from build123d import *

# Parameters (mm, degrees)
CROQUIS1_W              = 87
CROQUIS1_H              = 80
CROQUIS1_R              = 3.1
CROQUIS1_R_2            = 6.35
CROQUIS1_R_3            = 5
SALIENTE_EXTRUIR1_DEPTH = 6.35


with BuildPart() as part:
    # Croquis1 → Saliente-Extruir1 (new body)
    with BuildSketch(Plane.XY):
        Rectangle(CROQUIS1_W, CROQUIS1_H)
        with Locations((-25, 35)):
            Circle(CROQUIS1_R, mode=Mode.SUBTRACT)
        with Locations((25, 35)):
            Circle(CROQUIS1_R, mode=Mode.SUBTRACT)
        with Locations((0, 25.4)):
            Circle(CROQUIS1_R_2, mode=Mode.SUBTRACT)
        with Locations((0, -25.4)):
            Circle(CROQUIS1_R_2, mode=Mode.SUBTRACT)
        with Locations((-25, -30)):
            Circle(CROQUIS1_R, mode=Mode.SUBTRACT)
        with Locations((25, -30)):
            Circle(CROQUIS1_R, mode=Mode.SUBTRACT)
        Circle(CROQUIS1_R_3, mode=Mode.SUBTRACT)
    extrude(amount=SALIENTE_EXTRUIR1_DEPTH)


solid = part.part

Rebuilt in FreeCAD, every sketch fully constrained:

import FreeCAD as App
import Part
import Sketcher
from FreeCAD import Vector

doc = App.newDocument("Part")
body = doc.addObject("PartDesign::Body", "Body")

# Sketch on XY plane
sketch1 = doc.addObject("Sketcher::SketchObject", "Sketch")
body.addObject(sketch1)
sketch1.AttachmentSupport = (doc.XY_Plane, [""])
sketch1.MapMode = "FlatFace"
sketch1.addGeometry([
    Part.LineSegment(Vector(-43.5, 40, 0), Vector(-43.5, -40, 0)),  # 0
    Part.LineSegment(Vector(-43.5, -40, 0), Vector(43.5, -40, 0)),  # 1
    Part.LineSegment(Vector(43.5, -40, 0), Vector(43.5, 40, 0)),  # 2
    Part.LineSegment(Vector(43.5, 40, 0), Vector(-43.5, 40, 0)),  # 3
    Part.Circle(Vector(-25, -30, 0), Vector(0, 0, 1), 3.1),  # 4
    Part.Circle(Vector(0, -25.4, 0), Vector(0, 0, 1), 6.3),  # 5
    Part.Circle(Vector(25, -30, 0), Vector(0, 0, 1), 3.1),  # 6
    Part.Circle(Vector(0, 0, 0), Vector(0, 0, 1), 5),  # 7
    Part.Circle(Vector(-25, 35, 0), Vector(0, 0, 1), 3.1),  # 8
    Part.Circle(Vector(0, 25.4, 0), Vector(0, 0, 1), 6.3),  # 9
    Part.Circle(Vector(25, 35, 0), Vector(0, 0, 1), 3.1),  # 10
], False)
sketch1.addConstraint([
    Sketcher.Constraint("Coincident", 0, 2, 1, 1),
    Sketcher.Constraint("Coincident", 1, 2, 2, 1),
    Sketcher.Constraint("Coincident", 2, 2, 3, 1),
    Sketcher.Constraint("Coincident", 3, 2, 0, 1),
    Sketcher.Constraint("Vertical", 0),
    Sketcher.Constraint("Horizontal", 1),
    Sketcher.Constraint("Vertical", 2),
    Sketcher.Constraint("Horizontal", 3),
    Sketcher.Constraint("Coincident", 7, 3, -1, 1),
    Sketcher.Constraint("Equal", 4, 6),
    Sketcher.Constraint("Equal", 6, 8),
    Sketcher.Constraint("Equal", 5, 9),
    Sketcher.Constraint("Equal", 8, 10),
    Sketcher.Constraint("Symmetric", 5, 3, 9, 3, -1, 1),
    Sketcher.Constraint("Symmetric", 0, 2, 2, 2, -1, 1),
    Sketcher.Constraint("Symmetric", 4, 3, 6, 3, -2),
    Sketcher.Constraint("Symmetric", 8, 3, 10, 3, -2),
    Sketcher.Constraint("PointOnObject", 5, 3, -2),
    Sketcher.Constraint("Vertical", 4, 3, 8, 3),
    Sketcher.Constraint("Diameter", 7, 10.0),
    Sketcher.Constraint("Diameter", 4, 6.2),
    Sketcher.Constraint("Diameter", 5, 12.7),
    Sketcher.Constraint("DistanceX", 1, 1, 1, 2, 87.0),
    Sketcher.Constraint("DistanceY", 0, 2, 0, 1, 80.0),
    Sketcher.Constraint("DistanceX", 4, 3, -1, 1, 25.0),
    Sketcher.Constraint("DistanceY", 4, 3, -1, 1, 30.0),
    Sketcher.Constraint("DistanceY", -1, 1, 8, 3, 35.0),
    Sketcher.Constraint("DistanceY", 5, 3, -1, 1, 25.4),
])
pad1 = doc.addObject("PartDesign::Pad", "Pad")
body.addObject(pad1)
pad1.Profile = sketch1
pad1.Length = 6.35

doc.recompute()
